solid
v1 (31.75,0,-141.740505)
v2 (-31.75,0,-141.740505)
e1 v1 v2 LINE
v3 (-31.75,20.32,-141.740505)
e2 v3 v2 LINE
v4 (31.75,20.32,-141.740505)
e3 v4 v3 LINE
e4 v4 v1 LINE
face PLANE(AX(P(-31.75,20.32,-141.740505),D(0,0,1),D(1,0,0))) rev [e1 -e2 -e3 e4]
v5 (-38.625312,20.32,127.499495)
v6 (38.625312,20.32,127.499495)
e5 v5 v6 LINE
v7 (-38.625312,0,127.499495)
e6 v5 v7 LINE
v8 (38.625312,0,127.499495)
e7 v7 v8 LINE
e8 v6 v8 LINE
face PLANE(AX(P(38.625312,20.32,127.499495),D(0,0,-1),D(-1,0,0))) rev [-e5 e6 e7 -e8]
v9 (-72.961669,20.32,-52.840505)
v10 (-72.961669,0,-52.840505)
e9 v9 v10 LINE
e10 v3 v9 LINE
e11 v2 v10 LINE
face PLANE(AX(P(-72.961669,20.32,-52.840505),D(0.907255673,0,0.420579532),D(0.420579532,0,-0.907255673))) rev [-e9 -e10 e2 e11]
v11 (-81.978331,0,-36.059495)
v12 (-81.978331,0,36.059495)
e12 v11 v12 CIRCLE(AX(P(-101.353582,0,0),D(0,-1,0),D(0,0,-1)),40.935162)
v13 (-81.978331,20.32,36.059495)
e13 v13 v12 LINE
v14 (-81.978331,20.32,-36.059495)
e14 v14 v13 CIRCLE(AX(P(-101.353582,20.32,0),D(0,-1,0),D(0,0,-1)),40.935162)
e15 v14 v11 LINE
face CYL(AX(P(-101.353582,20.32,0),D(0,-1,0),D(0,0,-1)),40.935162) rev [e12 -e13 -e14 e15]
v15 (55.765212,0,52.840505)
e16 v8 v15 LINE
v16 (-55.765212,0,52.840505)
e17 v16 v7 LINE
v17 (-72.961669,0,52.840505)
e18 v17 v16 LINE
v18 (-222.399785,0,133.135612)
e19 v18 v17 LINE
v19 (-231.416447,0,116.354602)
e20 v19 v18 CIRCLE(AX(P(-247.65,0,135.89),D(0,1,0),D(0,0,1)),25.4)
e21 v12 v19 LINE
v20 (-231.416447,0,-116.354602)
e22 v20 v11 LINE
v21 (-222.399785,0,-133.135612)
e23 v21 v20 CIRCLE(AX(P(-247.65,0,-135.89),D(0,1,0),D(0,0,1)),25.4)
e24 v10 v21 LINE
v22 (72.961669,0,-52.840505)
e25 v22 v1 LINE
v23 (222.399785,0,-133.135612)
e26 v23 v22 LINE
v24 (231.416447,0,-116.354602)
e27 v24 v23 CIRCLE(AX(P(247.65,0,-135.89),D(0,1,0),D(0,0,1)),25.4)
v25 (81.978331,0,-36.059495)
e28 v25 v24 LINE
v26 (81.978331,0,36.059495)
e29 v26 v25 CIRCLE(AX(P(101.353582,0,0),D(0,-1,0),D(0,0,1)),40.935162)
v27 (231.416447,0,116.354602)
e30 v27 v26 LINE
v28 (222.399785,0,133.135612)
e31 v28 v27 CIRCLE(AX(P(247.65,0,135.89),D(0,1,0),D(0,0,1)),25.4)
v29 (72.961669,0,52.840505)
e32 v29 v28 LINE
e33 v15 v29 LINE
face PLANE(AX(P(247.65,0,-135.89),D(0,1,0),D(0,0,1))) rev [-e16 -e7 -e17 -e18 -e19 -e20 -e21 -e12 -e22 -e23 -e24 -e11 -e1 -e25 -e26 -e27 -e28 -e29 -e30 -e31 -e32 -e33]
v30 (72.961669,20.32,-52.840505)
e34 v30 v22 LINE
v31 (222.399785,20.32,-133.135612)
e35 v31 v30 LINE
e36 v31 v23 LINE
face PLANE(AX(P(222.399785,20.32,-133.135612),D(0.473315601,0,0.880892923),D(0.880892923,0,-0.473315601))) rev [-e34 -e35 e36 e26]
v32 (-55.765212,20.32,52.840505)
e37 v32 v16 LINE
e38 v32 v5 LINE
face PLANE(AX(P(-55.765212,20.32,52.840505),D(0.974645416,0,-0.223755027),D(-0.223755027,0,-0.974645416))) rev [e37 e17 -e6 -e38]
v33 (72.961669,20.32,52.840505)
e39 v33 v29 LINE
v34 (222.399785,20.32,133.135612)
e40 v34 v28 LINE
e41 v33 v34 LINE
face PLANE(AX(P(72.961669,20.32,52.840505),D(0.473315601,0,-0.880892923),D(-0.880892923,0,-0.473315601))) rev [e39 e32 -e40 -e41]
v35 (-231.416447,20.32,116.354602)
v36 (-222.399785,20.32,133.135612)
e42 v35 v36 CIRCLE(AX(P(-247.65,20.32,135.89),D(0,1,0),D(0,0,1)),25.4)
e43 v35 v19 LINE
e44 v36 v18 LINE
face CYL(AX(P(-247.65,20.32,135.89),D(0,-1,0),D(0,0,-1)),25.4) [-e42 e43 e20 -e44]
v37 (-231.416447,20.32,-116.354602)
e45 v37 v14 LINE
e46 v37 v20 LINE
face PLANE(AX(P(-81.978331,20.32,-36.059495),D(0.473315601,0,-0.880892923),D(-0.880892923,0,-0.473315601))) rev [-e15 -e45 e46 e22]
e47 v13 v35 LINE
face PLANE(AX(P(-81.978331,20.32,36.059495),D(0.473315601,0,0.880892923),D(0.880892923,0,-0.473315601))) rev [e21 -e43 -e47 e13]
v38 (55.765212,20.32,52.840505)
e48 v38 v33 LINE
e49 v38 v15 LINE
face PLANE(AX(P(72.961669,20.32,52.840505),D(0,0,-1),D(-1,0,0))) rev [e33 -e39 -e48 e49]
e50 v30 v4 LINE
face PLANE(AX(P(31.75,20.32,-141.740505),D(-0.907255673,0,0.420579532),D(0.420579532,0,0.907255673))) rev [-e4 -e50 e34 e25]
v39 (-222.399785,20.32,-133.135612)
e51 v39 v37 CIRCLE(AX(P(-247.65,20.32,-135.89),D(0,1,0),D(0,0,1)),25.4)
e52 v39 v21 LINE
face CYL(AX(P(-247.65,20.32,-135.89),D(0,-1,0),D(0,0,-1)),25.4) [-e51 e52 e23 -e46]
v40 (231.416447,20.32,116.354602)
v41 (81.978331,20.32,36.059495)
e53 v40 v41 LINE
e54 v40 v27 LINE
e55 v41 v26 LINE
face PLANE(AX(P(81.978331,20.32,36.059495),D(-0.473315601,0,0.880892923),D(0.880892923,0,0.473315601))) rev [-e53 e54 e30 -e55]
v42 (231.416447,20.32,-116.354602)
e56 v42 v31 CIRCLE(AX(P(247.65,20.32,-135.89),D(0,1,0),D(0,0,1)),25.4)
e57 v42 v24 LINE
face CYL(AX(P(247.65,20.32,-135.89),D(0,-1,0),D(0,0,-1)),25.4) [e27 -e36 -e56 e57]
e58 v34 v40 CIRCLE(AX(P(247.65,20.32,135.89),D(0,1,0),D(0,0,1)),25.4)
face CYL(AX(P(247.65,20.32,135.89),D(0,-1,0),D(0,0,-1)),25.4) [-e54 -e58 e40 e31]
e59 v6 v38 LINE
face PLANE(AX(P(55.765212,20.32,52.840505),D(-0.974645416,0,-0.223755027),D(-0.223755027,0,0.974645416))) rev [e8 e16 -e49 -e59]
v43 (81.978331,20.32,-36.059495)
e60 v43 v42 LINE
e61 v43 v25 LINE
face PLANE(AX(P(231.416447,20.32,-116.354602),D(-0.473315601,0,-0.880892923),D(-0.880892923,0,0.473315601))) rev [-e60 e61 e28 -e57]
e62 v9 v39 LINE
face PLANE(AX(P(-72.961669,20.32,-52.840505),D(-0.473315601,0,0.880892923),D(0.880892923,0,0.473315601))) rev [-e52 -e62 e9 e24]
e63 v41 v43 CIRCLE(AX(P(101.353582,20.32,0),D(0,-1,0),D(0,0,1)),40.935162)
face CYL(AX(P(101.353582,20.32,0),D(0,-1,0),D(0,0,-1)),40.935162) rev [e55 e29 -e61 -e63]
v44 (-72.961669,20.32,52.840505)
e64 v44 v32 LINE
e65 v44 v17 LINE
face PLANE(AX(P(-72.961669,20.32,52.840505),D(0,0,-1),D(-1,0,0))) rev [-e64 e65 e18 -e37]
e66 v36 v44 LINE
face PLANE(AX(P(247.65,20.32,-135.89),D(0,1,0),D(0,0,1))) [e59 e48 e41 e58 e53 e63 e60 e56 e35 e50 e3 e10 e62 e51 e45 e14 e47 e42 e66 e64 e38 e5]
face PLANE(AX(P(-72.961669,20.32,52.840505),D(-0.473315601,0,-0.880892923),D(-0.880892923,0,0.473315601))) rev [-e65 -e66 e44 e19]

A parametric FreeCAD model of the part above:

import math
import FreeCAD as App
import Part
import Sketcher

V = App.Vector
Q = App.Units.Quantity

doc = App.newDocument("Part")
params = doc.addObject("Spreadsheet::Sheet", "Params")
for row, (alias, value) in enumerate([
    ("sketch1_radius", "1 in"),
    ("sketch1_width", "2.5 in"),
    ("pad1_length", "0.8 in"),
], start=1):
    params.set(f"A{row}", alias)
    params.set(f"B{row}", "=" + value)
    params.setAlias(f"B{row}", alias)

body = doc.addObject("PartDesign::Body", "Body")

sketch1 = body.newObject("Sketcher::SketchObject", "Sketch")
sketch1.AttachmentSupport = (doc.getObject("XZ_Plane"), [""])
sketch1.MapMode = "FlatFace"
sketch1.addGeometry(Part.LineSegment(V(-73, -53, 0), V(-222, -133, 0)), False)
sketch1.addGeometry(Part.ArcOfCircle(Part.Circle(V(-248, -136, 0), V(0, 0, 1), 25), math.radians(50), math.radians(366)), False)
sketch1.addGeometry(Part.LineSegment(V(-231, -116, 0), V(-82, -36, 0)), False)
sketch1.addGeometry(Part.ArcOfCircle(Part.Circle(V(-101, 0, 0), V(0, 0, 1), 41), math.radians(-62), math.radians(62)), False)
sketch1.addGeometry(Part.LineSegment(V(-82, 36, 0), V(-231, 116, 0)), False)
sketch1.addGeometry(Part.ArcOfCircle(Part.Circle(V(-248, 136, 0), V(0, 0, 1), 25), math.radians(-6), math.radians(310)), False)
sketch1.addGeometry(Part.LineSegment(V(-222, 133, 0), V(-73, 53, 0)), False)
sketch1.addGeometry(Part.LineSegment(V(-73, 53, 0), V(-56, 53, 0)), False)
sketch1.addGeometry(Part.LineSegment(V(-56, 53, 0), V(-39, 127, 0)), False)
sketch1.addGeometry(Part.LineSegment(V(-39, 127, 0), V(39, 127, 0)), False)
sketch1.addGeometry(Part.LineSegment(V(39, 127, 0), V(56, 53, 0)), False)
sketch1.addGeometry(Part.LineSegment(V(56, 53, 0), V(73, 53, 0)), False)
sketch1.addGeometry(Part.LineSegment(V(73, 53, 0), V(222, 133, 0)), False)
sketch1.addGeometry(Part.ArcOfCircle(Part.Circle(V(248, 136, 0), V(0, 0, 1), 25), math.radians(-130), math.radians(186)), False)
sketch1.addGeometry(Part.LineSegment(V(231, 116, 0), V(82, 36, 0)), False)
sketch1.addGeometry(Part.ArcOfCircle(Part.Circle(V(101, 0, 0), V(0, 0, 1), 41), math.radians(118), math.radians(242)), False)
sketch1.addGeometry(Part.LineSegment(V(82, -36, 0), V(231, -116, 0)), False)
sketch1.addGeometry(Part.ArcOfCircle(Part.Circle(V(248, -136, 0), V(0, 0, 1), 25), math.radians(174), math.radians(490)), False)
sketch1.addGeometry(Part.LineSegment(V(222, -133, 0), V(73, -53, 0)), False)
sketch1.addGeometry(Part.LineSegment(V(73, -53, 0), V(32, -142, 0)), False)
sketch1.addGeometry(Part.LineSegment(V(32, -142, 0), V(-32, -142, 0)), False)
sketch1.addGeometry(Part.LineSegment(V(-32, -142, 0), V(-73, -53, 0)), False)
sketch1.addConstraint(Sketcher.Constraint("Coincident", 0, 2, 1, 2))
sketch1.addConstraint(Sketcher.Constraint("Coincident", 1, 1, 2, 1))
sketch1.addConstraint(Sketcher.Constraint("Tangent", 2, 2, 3, 1))
sketch1.addConstraint(Sketcher.Constraint("Tangent", 3, 2, 4, 1))
sketch1.addConstraint(Sketcher.Constraint("Coincident", 4, 2, 5, 2))
sketch1.addConstraint(Sketcher.Constraint("Coincident", 5, 1, 6, 1))
sketch1.addConstraint(Sketcher.Constraint("Coincident", 6, 2, 7, 1))
sketch1.addConstraint(Sketcher.Constraint("Coincident", 7, 2, 8, 1))
sketch1.addConstraint(Sketcher.Constraint("Coincident", 8, 2, 9, 1))
sketch1.addConstraint(Sketcher.Constraint("Coincident", 9, 2, 10, 1))
sketch1.addConstraint(Sketcher.Constraint("Coincident", 10, 2, 11, 1))
sketch1.addConstraint(Sketcher.Constraint("Coincident", 11, 2, 12, 1))
sketch1.addConstraint(Sketcher.Constraint("Coincident", 12, 2, 13, 2))
sketch1.addConstraint(Sketcher.Constraint("Coincident", 13, 1, 14, 1))
sketch1.addConstraint(Sketcher.Constraint("Tangent", 14, 2, 15, 1))
sketch1.addConstraint(Sketcher.Constraint("Tangent", 15, 2, 16, 1))
sketch1.addConstraint(Sketcher.Constraint("Coincident", 16, 2, 17, 2))
sketch1.addConstraint(Sketcher.Constraint("Coincident", 17, 1, 18, 1))
sketch1.addConstraint(Sketcher.Constraint("Coincident", 18, 2, 19, 1))
sketch1.addConstraint(Sketcher.Constraint("Coincident", 19, 2, 20, 1))
sketch1.addConstraint(Sketcher.Constraint("Coincident", 20, 2, 21, 1))
sketch1.addConstraint(Sketcher.Constraint("Coincident", 21, 2, 0, 1))
sketch1.addConstraint(Sketcher.Constraint("Horizontal", 7))
sketch1.addConstraint(Sketcher.Constraint("Horizontal", 9))
sketch1.addConstraint(Sketcher.Constraint("Horizontal", 11))
sketch1.addConstraint(Sketcher.Constraint("Horizontal", 20))
sketch1.addConstraint(Sketcher.Constraint("Equal", 1, 5))
sketch1.addConstraint(Sketcher.Constraint("Equal", 5, 13))
sketch1.addConstraint(Sketcher.Constraint("Equal", 3, 15))
sketch1.addConstraint(Sketcher.Constraint("Equal", 13, 17))
sketch1.addConstraint(Sketcher.Constraint("Symmetric", 1, 3, 13, 3, -1, 1))
sketch1.addConstraint(Sketcher.Constraint("Symmetric", 3, 3, 15, 3, -1, 1))
sketch1.addConstraint(Sketcher.Constraint("Symmetric", 5, 3, 17, 3, -1, 1))
sketch1.addConstraint(Sketcher.Constraint("Symmetric", 6, 2, 18, 2, -1, 1))
sketch1.addConstraint(Sketcher.Constraint("Symmetric", 11, 2, 21, 2, -1, 1))
sketch1.addConstraint(Sketcher.Constraint("Symmetric", 5, 3, 13, 3, -2))
sketch1.addConstraint(Sketcher.Constraint("Symmetric", 7, 2, 10, 2, -2))
sketch1.addConstraint(Sketcher.Constraint("Symmetric", 3, 2, 14, 2, -2))
sketch1.addConstraint(Sketcher.Constraint("Parallel", 0, 2))
sketch1.addConstraint(Sketcher.Constraint("Parallel", 4, 6))
sketch1.addConstraint(Sketcher.Constraint("Parallel", 2, 12))
sketch1.addConstraint(Sketcher.Constraint("Parallel", 12, 14))
sketch1.addConstraint(Sketcher.Constraint("Parallel", 6, 16))
sketch1.addConstraint(Sketcher.Constraint("Parallel", 16, 18))
sketch1.addConstraint(Sketcher.Constraint("Horizontal", 5, 1, 12, 2))
sketch1.addConstraint(Sketcher.Constraint("Equal", 0, 2))
sketch1.addConstraint(Sketcher.Constraint("Equal", 8, 10))
sketch1.addConstraint(Sketcher.Constraint("Equal", 19, 21))
sketch1.addConstraint(Sketcher.Constraint("Radius", 1, Q("1 in")))
sketch1.addConstraint(Sketcher.Constraint("DistanceX", 20, 2, 20, 1, Q("2.5 in")))
sketch1.addConstraint(Sketcher.Constraint("DistanceY", 19, 2, 14, 2, Q("7 in")))
sketch1.addConstraint(Sketcher.Constraint("DistanceY", 1, 3, 5, 3, Q("10.7 in")))
sketch1.addConstraint(Sketcher.Constraint("DistanceX", 5, 3, 13, 3, Q("19.5 in")))
sketch1.addConstraint(Sketcher.Constraint("DistanceY", 2, 2, 6, 2, Q("3.5 in")))
sketch1.addConstraint(Sketcher.Constraint("DistanceY", 3, 2, 8, 2, Q("3.6 in")))
sketch1.addConstraint(Sketcher.Constraint("Radius", 3, Q("40.935162 mm")))
sketch1.addConstraint(Sketcher.Constraint("DistanceX", 7, 2, 8, 2, Q("17.139899 mm")))
sketch1.addConstraint(Sketcher.Constraint("Distance", 8, Q("76.601181 mm")))
sketch1.addConstraint(Sketcher.Constraint("DistanceX", 7, 1, 7, 2, Q("17.196457 mm")))
sketch1.addConstraint(Sketcher.Constraint("DistanceX", 9, 1, 9, 2, Q("77.250625 mm")))
sketch1.setExpression("Constraints[48]", "Params.sketch1_radius")
sketch1.setExpression("Constraints[49]", "Params.sketch1_width")
pad1 = body.newObject("PartDesign::Pad", "Pad")
pad1.Profile = sketch1
pad1.setExpression("Length", "Params.pad1_length")
pad1.Reversed = True

doc.recompute()
